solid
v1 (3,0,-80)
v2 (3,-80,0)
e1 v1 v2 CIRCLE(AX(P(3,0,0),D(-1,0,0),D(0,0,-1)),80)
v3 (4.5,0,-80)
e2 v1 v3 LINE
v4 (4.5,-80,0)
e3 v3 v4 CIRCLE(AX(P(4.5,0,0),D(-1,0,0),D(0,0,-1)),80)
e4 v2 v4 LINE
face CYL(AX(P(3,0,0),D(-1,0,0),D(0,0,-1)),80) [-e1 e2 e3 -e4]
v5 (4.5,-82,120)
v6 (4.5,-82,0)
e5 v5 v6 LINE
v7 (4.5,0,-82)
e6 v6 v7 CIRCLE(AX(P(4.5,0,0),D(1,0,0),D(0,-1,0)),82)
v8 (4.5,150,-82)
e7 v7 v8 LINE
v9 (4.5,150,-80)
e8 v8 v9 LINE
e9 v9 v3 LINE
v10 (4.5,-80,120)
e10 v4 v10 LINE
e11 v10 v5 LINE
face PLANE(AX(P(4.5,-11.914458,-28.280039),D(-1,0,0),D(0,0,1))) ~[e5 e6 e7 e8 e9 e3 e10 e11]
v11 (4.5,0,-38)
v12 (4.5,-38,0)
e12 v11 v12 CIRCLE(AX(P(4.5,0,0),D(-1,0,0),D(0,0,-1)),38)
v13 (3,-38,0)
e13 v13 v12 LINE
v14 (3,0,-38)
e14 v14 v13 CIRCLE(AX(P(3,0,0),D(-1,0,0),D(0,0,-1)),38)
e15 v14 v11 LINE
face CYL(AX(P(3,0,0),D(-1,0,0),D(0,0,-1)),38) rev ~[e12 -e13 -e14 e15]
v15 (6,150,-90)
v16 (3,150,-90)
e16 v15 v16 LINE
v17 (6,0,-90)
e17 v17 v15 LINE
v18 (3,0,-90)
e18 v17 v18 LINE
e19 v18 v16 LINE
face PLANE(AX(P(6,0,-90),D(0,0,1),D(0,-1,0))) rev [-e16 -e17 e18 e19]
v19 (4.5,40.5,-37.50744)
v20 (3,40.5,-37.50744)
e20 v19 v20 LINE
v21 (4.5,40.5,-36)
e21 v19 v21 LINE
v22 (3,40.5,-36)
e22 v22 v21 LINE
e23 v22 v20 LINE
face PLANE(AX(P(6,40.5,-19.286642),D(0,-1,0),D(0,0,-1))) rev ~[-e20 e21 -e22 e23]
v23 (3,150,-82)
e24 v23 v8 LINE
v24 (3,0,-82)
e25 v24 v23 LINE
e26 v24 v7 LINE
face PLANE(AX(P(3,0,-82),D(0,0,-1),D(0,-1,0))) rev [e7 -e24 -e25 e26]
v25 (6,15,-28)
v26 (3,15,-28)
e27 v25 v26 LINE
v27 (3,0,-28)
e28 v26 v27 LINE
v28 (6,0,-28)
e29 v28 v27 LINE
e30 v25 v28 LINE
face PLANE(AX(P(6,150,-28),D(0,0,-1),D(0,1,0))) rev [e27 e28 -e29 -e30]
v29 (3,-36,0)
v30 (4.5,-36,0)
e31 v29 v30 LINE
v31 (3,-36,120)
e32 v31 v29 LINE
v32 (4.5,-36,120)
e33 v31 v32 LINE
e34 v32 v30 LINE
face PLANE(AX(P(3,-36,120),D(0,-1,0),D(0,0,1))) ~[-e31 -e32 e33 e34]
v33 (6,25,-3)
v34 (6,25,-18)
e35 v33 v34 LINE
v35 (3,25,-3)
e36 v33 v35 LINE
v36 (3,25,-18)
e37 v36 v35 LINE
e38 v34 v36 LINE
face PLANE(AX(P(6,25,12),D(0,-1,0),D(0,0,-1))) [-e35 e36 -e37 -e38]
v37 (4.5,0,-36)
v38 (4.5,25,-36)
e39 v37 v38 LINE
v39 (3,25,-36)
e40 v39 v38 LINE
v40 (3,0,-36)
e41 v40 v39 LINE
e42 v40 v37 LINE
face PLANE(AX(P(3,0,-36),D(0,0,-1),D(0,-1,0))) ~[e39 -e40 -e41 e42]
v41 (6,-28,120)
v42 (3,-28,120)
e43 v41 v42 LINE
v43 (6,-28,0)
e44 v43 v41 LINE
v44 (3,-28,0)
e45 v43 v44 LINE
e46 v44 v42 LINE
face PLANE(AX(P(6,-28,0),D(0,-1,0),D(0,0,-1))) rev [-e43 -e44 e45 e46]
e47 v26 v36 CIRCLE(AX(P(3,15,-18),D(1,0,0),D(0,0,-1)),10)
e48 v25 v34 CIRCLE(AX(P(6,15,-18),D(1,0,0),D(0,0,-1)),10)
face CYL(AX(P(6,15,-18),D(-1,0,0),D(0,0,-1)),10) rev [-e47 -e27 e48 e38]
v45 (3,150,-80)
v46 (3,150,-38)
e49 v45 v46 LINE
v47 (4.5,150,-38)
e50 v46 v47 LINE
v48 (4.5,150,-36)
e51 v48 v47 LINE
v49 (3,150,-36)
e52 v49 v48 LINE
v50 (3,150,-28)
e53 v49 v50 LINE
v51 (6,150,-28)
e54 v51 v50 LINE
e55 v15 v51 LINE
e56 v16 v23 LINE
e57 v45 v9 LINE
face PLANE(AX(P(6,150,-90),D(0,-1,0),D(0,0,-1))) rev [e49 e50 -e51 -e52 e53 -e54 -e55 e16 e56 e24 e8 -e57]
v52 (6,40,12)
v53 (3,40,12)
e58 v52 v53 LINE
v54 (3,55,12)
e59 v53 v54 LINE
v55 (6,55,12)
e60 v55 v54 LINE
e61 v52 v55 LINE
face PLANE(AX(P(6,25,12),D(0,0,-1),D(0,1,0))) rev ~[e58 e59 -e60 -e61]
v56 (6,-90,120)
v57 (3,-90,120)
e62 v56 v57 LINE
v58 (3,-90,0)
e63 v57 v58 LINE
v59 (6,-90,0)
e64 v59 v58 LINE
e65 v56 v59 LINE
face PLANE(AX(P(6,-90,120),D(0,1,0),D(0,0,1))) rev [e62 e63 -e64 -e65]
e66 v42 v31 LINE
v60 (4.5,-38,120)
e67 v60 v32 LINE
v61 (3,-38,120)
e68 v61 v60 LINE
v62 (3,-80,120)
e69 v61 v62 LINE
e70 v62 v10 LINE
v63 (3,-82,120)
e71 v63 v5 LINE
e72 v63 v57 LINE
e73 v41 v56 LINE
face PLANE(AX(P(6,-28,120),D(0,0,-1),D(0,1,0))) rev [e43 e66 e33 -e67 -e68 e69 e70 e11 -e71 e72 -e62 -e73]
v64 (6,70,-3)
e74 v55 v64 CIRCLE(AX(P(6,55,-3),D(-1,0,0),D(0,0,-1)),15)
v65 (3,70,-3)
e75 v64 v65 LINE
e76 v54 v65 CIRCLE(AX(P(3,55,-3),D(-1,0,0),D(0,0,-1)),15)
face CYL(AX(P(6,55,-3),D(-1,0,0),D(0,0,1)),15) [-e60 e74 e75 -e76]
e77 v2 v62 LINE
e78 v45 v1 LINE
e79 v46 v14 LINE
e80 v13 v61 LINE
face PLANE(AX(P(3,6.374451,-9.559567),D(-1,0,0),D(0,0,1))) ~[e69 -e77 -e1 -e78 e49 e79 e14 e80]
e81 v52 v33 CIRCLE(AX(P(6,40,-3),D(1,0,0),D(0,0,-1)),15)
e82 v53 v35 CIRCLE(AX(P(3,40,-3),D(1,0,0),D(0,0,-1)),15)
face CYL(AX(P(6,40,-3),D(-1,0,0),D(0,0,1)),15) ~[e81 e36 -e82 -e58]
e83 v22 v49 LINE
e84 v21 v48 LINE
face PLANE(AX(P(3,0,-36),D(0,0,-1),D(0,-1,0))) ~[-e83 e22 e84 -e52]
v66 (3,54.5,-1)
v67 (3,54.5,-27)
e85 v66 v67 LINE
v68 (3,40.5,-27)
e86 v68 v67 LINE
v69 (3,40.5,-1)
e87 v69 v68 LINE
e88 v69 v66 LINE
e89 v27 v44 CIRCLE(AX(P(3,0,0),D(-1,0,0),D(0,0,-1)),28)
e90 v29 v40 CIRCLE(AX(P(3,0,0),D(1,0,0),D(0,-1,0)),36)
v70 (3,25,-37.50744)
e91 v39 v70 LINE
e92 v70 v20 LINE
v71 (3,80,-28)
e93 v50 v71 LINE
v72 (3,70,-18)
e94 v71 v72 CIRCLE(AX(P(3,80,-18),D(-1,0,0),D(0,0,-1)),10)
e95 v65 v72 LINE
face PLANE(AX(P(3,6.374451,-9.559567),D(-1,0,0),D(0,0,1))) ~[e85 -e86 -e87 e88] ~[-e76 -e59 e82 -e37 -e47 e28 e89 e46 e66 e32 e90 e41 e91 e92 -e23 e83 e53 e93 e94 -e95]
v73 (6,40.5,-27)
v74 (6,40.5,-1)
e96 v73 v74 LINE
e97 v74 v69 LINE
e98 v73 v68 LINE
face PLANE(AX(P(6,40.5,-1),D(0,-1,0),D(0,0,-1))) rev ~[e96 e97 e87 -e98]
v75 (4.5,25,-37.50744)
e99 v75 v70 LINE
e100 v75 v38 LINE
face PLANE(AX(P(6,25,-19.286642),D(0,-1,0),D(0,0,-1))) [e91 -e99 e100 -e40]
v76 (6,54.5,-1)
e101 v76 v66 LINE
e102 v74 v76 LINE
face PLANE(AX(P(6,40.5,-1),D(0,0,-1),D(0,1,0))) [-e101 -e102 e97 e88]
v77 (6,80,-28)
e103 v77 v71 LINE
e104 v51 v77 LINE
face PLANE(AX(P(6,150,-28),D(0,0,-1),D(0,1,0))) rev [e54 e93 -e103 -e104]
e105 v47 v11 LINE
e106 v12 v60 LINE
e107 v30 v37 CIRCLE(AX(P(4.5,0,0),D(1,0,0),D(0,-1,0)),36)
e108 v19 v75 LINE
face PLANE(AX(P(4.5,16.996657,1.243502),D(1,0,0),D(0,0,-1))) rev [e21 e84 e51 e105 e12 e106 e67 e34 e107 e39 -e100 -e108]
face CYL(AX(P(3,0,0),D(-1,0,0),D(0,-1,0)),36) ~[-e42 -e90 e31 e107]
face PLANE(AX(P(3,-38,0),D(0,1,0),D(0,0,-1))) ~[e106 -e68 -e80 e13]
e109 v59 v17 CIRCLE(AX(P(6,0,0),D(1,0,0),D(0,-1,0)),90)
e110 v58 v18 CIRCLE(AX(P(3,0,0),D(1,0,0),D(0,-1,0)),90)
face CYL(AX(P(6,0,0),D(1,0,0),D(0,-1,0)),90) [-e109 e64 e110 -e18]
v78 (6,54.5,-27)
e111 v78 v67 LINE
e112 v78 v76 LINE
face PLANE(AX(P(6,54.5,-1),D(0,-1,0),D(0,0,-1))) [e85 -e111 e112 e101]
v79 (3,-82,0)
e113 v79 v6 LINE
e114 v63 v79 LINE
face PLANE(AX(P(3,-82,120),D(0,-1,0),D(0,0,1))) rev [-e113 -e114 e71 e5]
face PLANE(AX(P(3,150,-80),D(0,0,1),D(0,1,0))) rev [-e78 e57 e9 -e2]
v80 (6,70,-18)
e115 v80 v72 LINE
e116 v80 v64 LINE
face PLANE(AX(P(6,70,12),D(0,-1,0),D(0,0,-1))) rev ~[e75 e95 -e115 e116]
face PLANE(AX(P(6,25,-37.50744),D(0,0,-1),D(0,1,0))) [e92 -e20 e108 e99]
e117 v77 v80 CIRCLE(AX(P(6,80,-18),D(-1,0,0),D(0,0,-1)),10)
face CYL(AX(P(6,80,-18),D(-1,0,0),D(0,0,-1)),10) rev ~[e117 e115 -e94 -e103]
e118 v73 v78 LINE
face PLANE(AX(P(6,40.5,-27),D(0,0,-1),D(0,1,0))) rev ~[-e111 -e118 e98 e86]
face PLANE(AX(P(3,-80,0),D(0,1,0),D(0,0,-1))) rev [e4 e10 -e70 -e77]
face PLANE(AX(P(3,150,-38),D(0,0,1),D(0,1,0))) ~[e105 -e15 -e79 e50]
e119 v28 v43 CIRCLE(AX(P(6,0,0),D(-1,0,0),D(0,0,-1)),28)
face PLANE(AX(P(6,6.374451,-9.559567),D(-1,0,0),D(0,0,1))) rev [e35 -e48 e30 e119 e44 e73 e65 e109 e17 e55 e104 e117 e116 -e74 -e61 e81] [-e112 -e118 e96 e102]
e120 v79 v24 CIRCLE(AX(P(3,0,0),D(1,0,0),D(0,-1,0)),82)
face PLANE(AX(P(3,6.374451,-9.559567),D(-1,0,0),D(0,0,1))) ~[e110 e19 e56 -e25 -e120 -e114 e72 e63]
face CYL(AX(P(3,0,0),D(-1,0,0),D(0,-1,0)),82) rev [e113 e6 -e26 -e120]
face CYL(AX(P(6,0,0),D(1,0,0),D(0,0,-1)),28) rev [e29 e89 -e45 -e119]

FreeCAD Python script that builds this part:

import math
import FreeCAD as App
import Part
import Sketcher
Q = App.Units.Quantity


def edges_at(feature, points):
    """Names of the edges that pass closest to the given points."""
    edges = feature.Shape.Edges
    near = lambda p: min(range(len(edges)), key=lambda i: edges[i].distToShape(Part.Vertex(*p))[0])
    return sorted({f"Edge{near(p) + 1}" for p in points})


def add_polygon(sketch, points):
    """Adds a closed chain of lines whose ends are joined by coincident constraints."""
    first, n = sketch.GeometryCount, len(points)
    for a, b in zip(points, points[1:] + points[:1]):
        sketch.addGeometry(Part.LineSegment(App.Vector(*a, 0), App.Vector(*b, 0)), False)
    for i in range(n):
        sketch.addConstraint(Sketcher.Constraint("Coincident", first + i, 2, first + (i + 1) % n, 1))

doc = App.newDocument("Part")
body = doc.addObject("PartDesign::Body", "Body")

# Sketch on YZ plane
sketch1 = doc.addObject("Sketcher::SketchObject", "Sketch")
body.addObject(sketch1)
sketch1.AttachmentSupport = (doc.YZ_Plane, [""])
sketch1.MapMode = "FlatFace"
sketch1.addGeometry([
    Part.LineSegment(App.Vector(-28, 0, 0), App.Vector(-28, 120, 0)),  # 0
    Part.LineSegment(App.Vector(-28, 120, 0), App.Vector(-90, 120, 0)),  # 1
    Part.LineSegment(App.Vector(-90, 120, 0), App.Vector(-90, 0, 0)),  # 2
    Part.ArcOfCircle(Part.Circle(App.Vector(0, 0, 0), App.Vector(0, 0, 1), 90), math.radians(180), math.radians(270)),  # 3
    Part.LineSegment(App.Vector(0, -90, 0), App.Vector(150, -90, 0)),  # 4
    Part.LineSegment(App.Vector(150, -90, 0), App.Vector(150, -28, 0)),  # 5
    Part.LineSegment(App.Vector(150, -28, 0), App.Vector(0, -28, 0)),  # 6
    Part.ArcOfCircle(Part.Circle(App.Vector(0, 0, 0), App.Vector(0, 0, 1), 28), math.radians(-180), math.radians(-90)),  # 7
], False)
sketch1.addConstraint([
    Sketcher.Constraint("Coincident", 0, 2, 1, 1),
    Sketcher.Constraint("Coincident", 1, 2, 2, 1),
    Sketcher.Constraint("Tangent", 2, 2, 3, 1),
    Sketcher.Constraint("Tangent", 3, 2, 4, 1),
    Sketcher.Constraint("Coincident", 4, 2, 5, 1),
    Sketcher.Constraint("Coincident", 5, 2, 6, 1),
    Sketcher.Constraint("Tangent", 6, 2, 7, 2),
    Sketcher.Constraint("Tangent", 7, 1, 0, 1),
    Sketcher.Constraint("Vertical", 0),
    Sketcher.Constraint("Horizontal", 1),
    Sketcher.Constraint("Vertical", 2),
    Sketcher.Constraint("Horizontal", 4),
    Sketcher.Constraint("Vertical", 5),
    Sketcher.Constraint("Horizontal", 6),
    Sketcher.Constraint("Coincident", 3, 3, -1, 1),
    Sketcher.Constraint("Coincident", 7, 3, -1, 1),
    Sketcher.Constraint("Radius", 3, Q("90 mm")),
    Sketcher.Constraint("Radius", 7, Q("28 mm")),
    Sketcher.Constraint("DistanceX", 4, 1, 4, 2, Q("150 mm")),
    Sketcher.Constraint("DistanceY", 0, 1, 0, 2, Q("120 mm")),
])
pad1 = doc.addObject("PartDesign::Pad", "Pad")
body.addObject(pad1)
pad1.Profile = sketch1
pad1.Length = 3

# Sketch on YZ plane
sketch2 = doc.addObject("Sketcher::SketchObject", "Sketch001")
body.addObject(sketch2)
sketch2.AttachmentSupport = (doc.YZ_Plane, [""])
sketch2.MapMode = "FlatFace"
sketch2.AttachmentOffset = App.Placement(App.Vector(0, 0, 3), App.Rotation())
sketch2.addGeometry([
    Part.LineSegment(App.Vector(-38, 120, 0), App.Vector(-38, 0, 0)),  # 0
    Part.ArcOfCircle(Part.Circle(App.Vector(0, 0, 0), App.Vector(0, 0, 1), 38), math.radians(180), math.radians(270)),  # 1
    Part.LineSegment(App.Vector(0, -38, 0), App.Vector(150, -38, 0)),  # 2
    Part.LineSegment(App.Vector(150, -38, 0), App.Vector(150, -36, 0)),  # 3
    Part.LineSegment(App.Vector(150, -36, 0), App.Vector(0, -36, 0)),  # 4
    Part.ArcOfCircle(Part.Circle(App.Vector(0, 0, 0), App.Vector(0, 0, 1), 36), math.radians(180), math.radians(270)),  # 5
    Part.LineSegment(App.Vector(-36, 0, 0), App.Vector(-36, 120, 0)),  # 6
    Part.LineSegment(App.Vector(-36, 120, 0), App.Vector(-38, 120, 0)),  # 7
    Part.LineSegment(App.Vector(-80, 0, 0), App.Vector(-80, 120, 0)),  # 8
    Part.LineSegment(App.Vector(-80, 120, 0), App.Vector(-82, 120, 0)),  # 9
    Part.LineSegment(App.Vector(-82, 120, 0), App.Vector(-82, 0, 0)),  # 10
    Part.ArcOfCircle(Part.Circle(App.Vector(0, 0, 0), App.Vector(0, 0, 1), 82), math.radians(-180), math.radians(-90)),  # 11
    Part.LineSegment(App.Vector(0, -82, 0), App.Vector(150, -82, 0)),  # 12
    Part.LineSegment(App.Vector(150, -82, 0), App.Vector(150, -80, 0)),  # 13
    Part.LineSegment(App.Vector(150, -80, 0), App.Vector(0, -80, 0)),  # 14
    Part.ArcOfCircle(Part.Circle(App.Vector(0, 0, 0), App.Vector(0, 0, 1), 80), math.radians(180), math.radians(270)),  # 15
], False)
sketch2.addConstraint([
    Sketcher.Constraint("Tangent", 0, 2, 1, 1),
    Sketcher.Constraint("Tangent", 1, 2, 2, 1),
    Sketcher.Constraint("Coincident", 2, 2, 3, 1),
    Sketcher.Constraint("Coincident", 3, 2, 4, 1),
    Sketcher.Constraint("Tangent", 4, 2, 5, 2),
    Sketcher.Constraint("Tangent", 5, 1, 6, 1),
    Sketcher.Constraint("Coincident", 6, 2, 7, 1),
    Sketcher.Constraint("Coincident", 7, 2, 0, 1),
    Sketcher.Constraint("Coincident", 8, 2, 9, 1),
    Sketcher.Constraint("Coincident", 9, 2, 10, 1),
    Sketcher.Constraint("Tangent", 10, 2, 11, 1),
    Sketcher.Constraint("Tangent", 11, 2, 12, 1),
    Sketcher.Constraint("Coincident", 12, 2, 13, 1),
    Sketcher.Constraint("Coincident", 13, 2, 14, 1),
    Sketcher.Constraint("Tangent", 14, 2, 15, 2),
    Sketcher.Constraint("Tangent", 15, 1, 8, 1),
    Sketcher.Constraint("Vertical", 0),
    Sketcher.Constraint("Horizontal", 2),
    Sketcher.Constraint("Vertical", 3),
    Sketcher.Constraint("Horizontal", 4),
    Sketcher.Constraint("Vertical", 6),
    Sketcher.Constraint("Horizontal", 7),
    Sketcher.Constraint("Vertical", 8),
    Sketcher.Constraint("Horizontal", 9),
    Sketcher.Constraint("Vertical", 10),
    Sketcher.Constraint("Horizontal", 12),
    Sketcher.Constraint("Vertical", 13),
    Sketcher.Constraint("Horizontal", 14),
    Sketcher.Constraint("Coincident", 1, 3, -1, 1),
    Sketcher.Constraint("Coincident", 5, 3, -1, 1),
    Sketcher.Constraint("Coincident", 11, 3, -1, 1),
    Sketcher.Constraint("Coincident", 15, 3, -1, 1),
    Sketcher.Constraint("Horizontal", 7, 2, 8, 2),
    Sketcher.Constraint("Vertical", 3, 2, 12, 2),
    Sketcher.Constraint("Equal", 7, 9),
    Sketcher.Constraint("Radius", 1, Q("38 mm")),
    Sketcher.Constraint("Radius", 5, Q("36 mm")),
    Sketcher.Constraint("Radius", 11, Q("82 mm")),
    Sketcher.Constraint("DistanceX", 2, 1, 2, 2, Q("150 mm")),
    Sketcher.Constraint("DistanceY", 0, 2, 0, 1, Q("120 mm")),
])
pocket1 = doc.addObject("PartDesign::Pocket", "Pocket")
body.addObject(pocket1)
pocket1.Profile = sketch2
pocket1.Length = 1.5
body2 = doc.addObject("PartDesign::Body", "Body001")
doc.recompute()

mirroring = doc.addObject("Part::Mirroring", "Mirroring")
mirroring.Source = body
mirroring.Base = App.Vector(3, 0, 0)
mirroring.Normal = App.Vector(1, 0, 0)
body2.BaseFeature = mirroring
doc.recompute()
body3 = doc.addObject("PartDesign::Body", "Body002")

# Sketch on YZ plane
sketch3 = doc.addObject("Sketcher::SketchObject", "Sketch002")
body3.addObject(sketch3)
sketch3.AttachmentSupport = (doc.getObject("YZ_Plane002"), [""])
sketch3.MapMode = "FlatFace"
sketch3.AttachmentOffset = App.Placement(App.Vector(0, 0, 6), App.Rotation())
add_polygon(sketch3, [(70, 12), (25, 12), (25, -28), (70, -28)])  # lines 0-3
sketch3.addConstraint([
    Sketcher.Constraint("Horizontal", 0),
    Sketcher.Constraint("Vertical", 1),
    Sketcher.Constraint("Horizontal", 2),
    Sketcher.Constraint("Vertical", 3),
    Sketcher.Constraint("DistanceX", 0, 2, 0, 1, Q("45 mm")),
    Sketcher.Constraint("DistanceY", 1, 2, 1, 1, Q("40 mm")),
    Sketcher.Constraint("DistanceX", -1, 1, 0, 2, Q("25 mm")),
    Sketcher.Constraint("DistanceY", -1, 1, 0, 2, Q("12 mm")),
])
pad2 = doc.addObject("PartDesign::Pad", "Pad001")
body3.addObject(pad2)
pad2.Profile = sketch3
pad2.Length = 3
pad2.Reversed = True

# Sketch on YZ plane
sketch4 = doc.addObject("Sketcher::SketchObject", "Sketch003")
body3.addObject(sketch4)
sketch4.AttachmentSupport = (doc.getObject("YZ_Plane002"), [""])
sketch4.MapMode = "FlatFace"
sketch4.AttachmentOffset = App.Placement(App.Vector(0, 0, 6), App.Rotation())
add_polygon(sketch4, [(54.5, -1), (40.5, -1), (40.5, -27), (54.5, -27)])  # lines 0-3
sketch4.addConstraint([
    Sketcher.Constraint("Horizontal", 0),
    Sketcher.Constraint("Vertical", 1),
    Sketcher.Constraint("Horizontal", 2),
    Sketcher.Constraint("Vertical", 3),
    Sketcher.Constraint("DistanceX", 0, 2, 0, 1, Q("14 mm")),
    Sketcher.Constraint("DistanceY", 1, 2, 1, 1, Q("26 mm")),
    Sketcher.Constraint("DistanceY", 0, 2, -1, 1, Q("1 mm")),
    Sketcher.Constraint("DistanceX", -1, 1, 0, 2, Q("40.5 mm")),
])
pocket2 = doc.addObject("PartDesign::Pocket", "Pocket001")
body3.addObject(pocket2)
pocket2.Profile = sketch4
pocket2.Length = 3
doc.recompute()

fillet = doc.addObject("PartDesign::Fillet", "Fillet")
body3.addObject(fillet)
fillet.Base = (pocket2, edges_at(pocket2, [(4.5, 25, 12), (4.5, 70, 12)]))
fillet.Radius = 15
doc.recompute()

boolean = doc.addObject("PartDesign::Boolean", "Boolean")
body2.addObject(boolean)
boolean.Type = "Fuse"
boolean.addObjects([body3])

# Sketch on YZ plane
sketch5 = doc.addObject("Sketcher::SketchObject", "Sketch004")
body2.addObject(sketch5)
sketch5.AttachmentSupport = (doc.getObject("YZ_Plane001"), [""])
sketch5.MapMode = "FlatFace"
sketch5.AttachmentOffset = App.Placement(App.Vector(0, 0, 6), App.Rotation())
add_polygon(sketch5, [(70, -21.248899), (54.5, -21.248899), (54.5, -31.687096), (70, -31.687096)])  # lines 0-3
add_polygon(sketch5, [(40.5, -19.286642), (25, -19.286642), (25, -37.50744), (40.5, -37.50744)])  # lines 4-7
sketch5.addConstraint([
    Sketcher.Constraint("Horizontal", 0),
    Sketcher.Constraint("Vertical", 1),
    Sketcher.Constraint("Horizontal", 2),
    Sketcher.Constraint("Vertical", 3),
    Sketcher.Constraint("Horizontal", 4),
    Sketcher.Constraint("Vertical", 5),
    Sketcher.Constraint("Horizontal", 6),
    Sketcher.Constraint("Vertical", 7),
    Sketcher.Constraint("Equal", 2, 4),
    Sketcher.Constraint("DistanceX", 0, 2, 0, 1, Q("15.5 mm")),
    Sketcher.Constraint("DistanceX", -1, 1, 2, 2, Q("70 mm")),
    Sketcher.Constraint("DistanceX", -1, 1, 4, 2, Q("25 mm")),
    Sketcher.Constraint("DistanceY", 0, 2, -1, 1, Q("21.248899 mm")),
    Sketcher.Constraint("DistanceY", 1, 2, 1, 1, Q("10.438198 mm")),
    Sketcher.Constraint("DistanceY", 5, 2, 5, 1, Q("18.220798 mm")),
    Sketcher.Constraint("DistanceY", 4, 2, -1, 1, Q("19.286642 mm")),
])
pad3 = doc.addObject("PartDesign::Pad", "Pad002")
body2.addObject(pad3)
pad3.Profile = sketch5
pad3.Length = 3
pad3.Reversed = True
doc.recompute()

fillet2 = doc.addObject("PartDesign::Fillet", "Fillet001")
body2.addObject(fillet2)
fillet2.Base = (pad3, edges_at(pad3, [(4.5, 70, -28), (4.5, 25, -28)]))
fillet2.Radius = 10
body.Visibility = False
mirroring.Visibility = False

doc.recompute()
